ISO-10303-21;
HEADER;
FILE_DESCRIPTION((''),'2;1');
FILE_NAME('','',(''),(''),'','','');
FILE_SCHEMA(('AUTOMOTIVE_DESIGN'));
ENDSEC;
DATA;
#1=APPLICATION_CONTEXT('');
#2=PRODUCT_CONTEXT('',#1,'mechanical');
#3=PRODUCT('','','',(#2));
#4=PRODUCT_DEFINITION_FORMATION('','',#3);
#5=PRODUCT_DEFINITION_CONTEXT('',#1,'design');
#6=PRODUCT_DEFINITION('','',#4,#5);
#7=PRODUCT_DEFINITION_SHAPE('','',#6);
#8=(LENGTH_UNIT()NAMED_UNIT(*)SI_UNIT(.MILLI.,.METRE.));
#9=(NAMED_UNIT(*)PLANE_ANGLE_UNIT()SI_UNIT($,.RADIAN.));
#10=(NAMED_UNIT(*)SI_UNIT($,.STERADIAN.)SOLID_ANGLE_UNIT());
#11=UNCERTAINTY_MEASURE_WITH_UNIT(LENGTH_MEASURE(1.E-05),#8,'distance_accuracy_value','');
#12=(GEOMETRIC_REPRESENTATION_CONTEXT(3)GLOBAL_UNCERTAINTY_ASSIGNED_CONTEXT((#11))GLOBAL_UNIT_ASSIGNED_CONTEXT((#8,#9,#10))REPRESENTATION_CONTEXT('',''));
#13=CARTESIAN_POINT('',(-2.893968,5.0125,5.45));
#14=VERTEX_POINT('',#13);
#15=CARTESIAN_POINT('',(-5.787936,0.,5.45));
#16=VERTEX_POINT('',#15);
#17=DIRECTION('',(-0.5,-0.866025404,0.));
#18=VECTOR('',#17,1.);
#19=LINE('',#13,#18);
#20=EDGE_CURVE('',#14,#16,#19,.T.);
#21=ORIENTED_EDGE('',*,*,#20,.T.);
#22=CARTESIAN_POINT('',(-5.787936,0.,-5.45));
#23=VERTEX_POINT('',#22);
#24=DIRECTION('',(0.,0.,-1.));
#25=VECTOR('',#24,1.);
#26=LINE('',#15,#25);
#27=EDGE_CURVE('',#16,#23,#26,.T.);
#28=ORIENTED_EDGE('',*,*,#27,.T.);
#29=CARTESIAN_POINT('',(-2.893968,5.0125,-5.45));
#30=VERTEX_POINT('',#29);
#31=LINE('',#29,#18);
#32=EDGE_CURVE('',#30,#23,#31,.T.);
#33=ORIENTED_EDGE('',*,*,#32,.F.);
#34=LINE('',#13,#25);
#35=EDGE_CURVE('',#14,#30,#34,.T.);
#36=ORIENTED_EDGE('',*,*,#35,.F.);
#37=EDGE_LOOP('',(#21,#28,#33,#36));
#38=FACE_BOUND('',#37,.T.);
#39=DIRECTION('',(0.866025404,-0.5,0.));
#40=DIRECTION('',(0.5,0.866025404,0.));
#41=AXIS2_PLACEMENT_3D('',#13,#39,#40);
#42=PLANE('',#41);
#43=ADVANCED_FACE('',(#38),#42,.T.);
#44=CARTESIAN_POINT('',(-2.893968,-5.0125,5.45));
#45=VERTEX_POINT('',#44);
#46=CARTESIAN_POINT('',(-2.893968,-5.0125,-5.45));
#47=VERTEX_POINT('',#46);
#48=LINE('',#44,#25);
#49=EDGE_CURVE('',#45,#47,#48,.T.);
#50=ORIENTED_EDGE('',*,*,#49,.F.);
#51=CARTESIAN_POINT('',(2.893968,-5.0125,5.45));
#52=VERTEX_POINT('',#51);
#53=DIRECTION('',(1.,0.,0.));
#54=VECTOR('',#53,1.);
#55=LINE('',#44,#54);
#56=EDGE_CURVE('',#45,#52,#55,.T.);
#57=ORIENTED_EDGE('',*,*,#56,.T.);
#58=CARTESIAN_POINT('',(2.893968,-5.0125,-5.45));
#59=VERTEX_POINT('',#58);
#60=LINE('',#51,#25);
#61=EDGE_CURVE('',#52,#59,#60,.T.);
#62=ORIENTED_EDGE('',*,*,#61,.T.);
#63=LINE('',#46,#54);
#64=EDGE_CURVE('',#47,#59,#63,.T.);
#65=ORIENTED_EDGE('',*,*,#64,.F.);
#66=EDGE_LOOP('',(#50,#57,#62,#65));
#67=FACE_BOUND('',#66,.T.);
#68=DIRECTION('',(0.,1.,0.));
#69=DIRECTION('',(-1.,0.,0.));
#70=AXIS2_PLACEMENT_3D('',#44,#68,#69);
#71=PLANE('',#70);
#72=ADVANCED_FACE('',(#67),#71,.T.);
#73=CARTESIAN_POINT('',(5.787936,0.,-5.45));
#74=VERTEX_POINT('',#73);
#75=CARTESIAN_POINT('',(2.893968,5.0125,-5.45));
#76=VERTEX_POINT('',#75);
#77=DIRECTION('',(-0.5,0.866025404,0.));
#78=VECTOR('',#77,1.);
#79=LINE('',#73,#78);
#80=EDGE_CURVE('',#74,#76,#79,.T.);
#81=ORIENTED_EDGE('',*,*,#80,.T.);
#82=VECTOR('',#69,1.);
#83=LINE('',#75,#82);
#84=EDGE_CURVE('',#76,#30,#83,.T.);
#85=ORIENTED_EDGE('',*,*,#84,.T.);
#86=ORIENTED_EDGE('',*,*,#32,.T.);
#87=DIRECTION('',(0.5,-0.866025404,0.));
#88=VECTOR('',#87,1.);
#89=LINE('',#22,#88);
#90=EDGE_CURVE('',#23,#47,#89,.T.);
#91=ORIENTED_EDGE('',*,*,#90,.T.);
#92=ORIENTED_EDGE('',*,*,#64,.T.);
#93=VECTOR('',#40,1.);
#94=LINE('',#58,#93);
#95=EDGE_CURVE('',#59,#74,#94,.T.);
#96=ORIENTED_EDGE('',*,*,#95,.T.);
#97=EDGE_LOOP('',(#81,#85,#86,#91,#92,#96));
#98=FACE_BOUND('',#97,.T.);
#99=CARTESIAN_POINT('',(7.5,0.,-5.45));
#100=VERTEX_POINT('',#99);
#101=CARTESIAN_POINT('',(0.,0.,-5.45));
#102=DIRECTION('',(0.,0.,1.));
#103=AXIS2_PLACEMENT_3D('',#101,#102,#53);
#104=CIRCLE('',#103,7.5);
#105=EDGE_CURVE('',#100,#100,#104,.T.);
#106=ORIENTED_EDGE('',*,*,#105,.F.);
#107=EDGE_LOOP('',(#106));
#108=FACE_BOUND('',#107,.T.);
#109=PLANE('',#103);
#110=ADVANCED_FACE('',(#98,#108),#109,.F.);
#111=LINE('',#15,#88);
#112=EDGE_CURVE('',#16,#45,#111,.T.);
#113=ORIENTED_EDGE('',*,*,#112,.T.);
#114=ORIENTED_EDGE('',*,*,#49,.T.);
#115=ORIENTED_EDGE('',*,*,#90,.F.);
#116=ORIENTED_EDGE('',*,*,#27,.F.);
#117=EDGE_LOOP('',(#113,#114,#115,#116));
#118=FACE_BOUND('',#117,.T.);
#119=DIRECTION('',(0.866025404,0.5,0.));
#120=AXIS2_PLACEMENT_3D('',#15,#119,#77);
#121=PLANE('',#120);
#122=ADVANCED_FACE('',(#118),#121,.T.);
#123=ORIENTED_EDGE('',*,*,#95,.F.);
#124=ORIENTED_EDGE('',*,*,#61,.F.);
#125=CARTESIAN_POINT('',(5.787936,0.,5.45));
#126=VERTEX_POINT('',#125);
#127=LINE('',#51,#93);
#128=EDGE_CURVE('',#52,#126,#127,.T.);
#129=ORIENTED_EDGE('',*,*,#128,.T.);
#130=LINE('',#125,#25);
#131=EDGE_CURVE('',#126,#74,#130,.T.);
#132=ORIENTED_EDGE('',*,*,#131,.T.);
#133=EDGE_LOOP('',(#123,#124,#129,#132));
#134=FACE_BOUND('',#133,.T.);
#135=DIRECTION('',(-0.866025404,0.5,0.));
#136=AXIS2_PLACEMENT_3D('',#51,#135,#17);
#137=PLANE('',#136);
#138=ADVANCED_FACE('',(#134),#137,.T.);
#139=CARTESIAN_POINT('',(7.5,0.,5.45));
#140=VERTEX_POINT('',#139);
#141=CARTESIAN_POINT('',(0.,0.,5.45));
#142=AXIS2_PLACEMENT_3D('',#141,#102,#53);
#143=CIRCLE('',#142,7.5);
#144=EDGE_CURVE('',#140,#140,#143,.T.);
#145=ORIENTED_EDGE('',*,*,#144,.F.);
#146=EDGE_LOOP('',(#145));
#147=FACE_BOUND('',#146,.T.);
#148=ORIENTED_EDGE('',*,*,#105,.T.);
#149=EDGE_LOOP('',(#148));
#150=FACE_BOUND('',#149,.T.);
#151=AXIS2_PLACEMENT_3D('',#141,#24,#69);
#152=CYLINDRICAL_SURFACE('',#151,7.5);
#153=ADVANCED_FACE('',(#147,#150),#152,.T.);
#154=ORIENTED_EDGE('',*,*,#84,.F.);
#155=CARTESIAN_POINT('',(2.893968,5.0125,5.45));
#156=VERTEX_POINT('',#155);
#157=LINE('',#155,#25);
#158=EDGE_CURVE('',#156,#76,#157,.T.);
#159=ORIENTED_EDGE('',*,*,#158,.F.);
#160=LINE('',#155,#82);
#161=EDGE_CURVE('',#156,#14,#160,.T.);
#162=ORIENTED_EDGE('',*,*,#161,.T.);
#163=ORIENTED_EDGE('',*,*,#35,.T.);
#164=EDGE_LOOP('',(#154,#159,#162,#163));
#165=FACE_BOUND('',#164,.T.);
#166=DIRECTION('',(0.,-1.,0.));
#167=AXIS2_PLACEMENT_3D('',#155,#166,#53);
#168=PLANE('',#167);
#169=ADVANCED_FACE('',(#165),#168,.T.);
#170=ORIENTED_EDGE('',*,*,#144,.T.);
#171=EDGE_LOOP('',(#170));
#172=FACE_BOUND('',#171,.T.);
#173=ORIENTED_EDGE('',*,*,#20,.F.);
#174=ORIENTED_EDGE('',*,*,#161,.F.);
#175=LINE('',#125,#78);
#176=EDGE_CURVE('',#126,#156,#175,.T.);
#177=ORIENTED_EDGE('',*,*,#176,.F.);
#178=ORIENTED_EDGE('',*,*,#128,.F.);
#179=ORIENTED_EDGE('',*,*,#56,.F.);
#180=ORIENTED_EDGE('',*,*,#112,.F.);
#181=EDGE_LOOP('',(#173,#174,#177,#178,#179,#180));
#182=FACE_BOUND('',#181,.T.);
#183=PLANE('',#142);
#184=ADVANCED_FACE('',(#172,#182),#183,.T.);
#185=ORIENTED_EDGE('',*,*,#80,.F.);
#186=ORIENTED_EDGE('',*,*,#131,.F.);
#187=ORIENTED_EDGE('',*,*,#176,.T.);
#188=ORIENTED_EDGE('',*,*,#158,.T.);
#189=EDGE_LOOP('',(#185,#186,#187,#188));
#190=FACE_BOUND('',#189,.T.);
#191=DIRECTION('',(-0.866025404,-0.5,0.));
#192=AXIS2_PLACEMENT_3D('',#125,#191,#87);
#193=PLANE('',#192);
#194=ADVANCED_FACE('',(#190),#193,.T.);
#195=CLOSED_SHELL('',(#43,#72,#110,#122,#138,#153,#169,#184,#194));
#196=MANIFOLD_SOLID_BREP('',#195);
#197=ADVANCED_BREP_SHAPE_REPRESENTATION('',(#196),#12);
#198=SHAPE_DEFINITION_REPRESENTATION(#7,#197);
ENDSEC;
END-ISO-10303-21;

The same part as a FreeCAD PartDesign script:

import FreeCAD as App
import Part
import Sketcher
Q = App.Units.Quantity


def add_polygon(sketch, points):
    """Adds a closed chain of lines whose ends are joined by coincident constraints."""
    first, n = sketch.GeometryCount, len(points)
    for a, b in zip(points, points[1:] + points[:1]):
        sketch.addGeometry(Part.LineSegment(App.Vector(*a, 0), App.Vector(*b, 0)), False)
    for i in range(n):
        sketch.addConstraint(Sketcher.Constraint("Coincident", first + i, 2, first + (i + 1) % n, 1))

doc = App.newDocument("Part")
body = doc.addObject("PartDesign::Body", "Body")

sketch1 = body.newObject("Sketcher::SketchObject", "Sketch")
sketch1.AttachmentSupport = (doc.getObject("XY_Plane"), [""])
sketch1.MapMode = "FlatFace"
sketch1.addGeometry(Part.Circle(App.Vector(0, 0, 0), App.Vector(0, 0, 1), 8), False)
add_polygon(sketch1, [(3, 5), (6, 0), (3, -5), (-3, -5), (-6, 0), (-3, 5)])
sketch1.addConstraint([
    Sketcher.Constraint("Horizontal", 3),
    Sketcher.Constraint("Horizontal", 6),
    Sketcher.Constraint("Coincident", 0, 3, -1, 1),
    Sketcher.Constraint("Symmetric", 1, 2, 4, 2, -1, 1),
    Sketcher.Constraint("Symmetric", 2, 2, 5, 2, -1, 1),
    Sketcher.Constraint("PointOnObject", 1, 2, -1),
    Sketcher.Constraint("Parallel", 1, 4),
    Sketcher.Constraint("Vertical", 3, 2, 5, 2),
    Sketcher.Constraint("Diameter", 0, 15.0),
    Sketcher.Constraint("Angle", 1, Q("-60 deg")),
    Sketcher.Constraint("DistanceY", 3, 2, 5, 2, 10.025),
    Sketcher.Constraint("DistanceX", 3, 2, 3, 1, 5.787936),
])
pad1 = body.newObject("PartDesign::Pad", "Pad")
pad1.Profile = sketch1
pad1.Length = 10.9
pad1.Midplane = True

doc.recompute()
